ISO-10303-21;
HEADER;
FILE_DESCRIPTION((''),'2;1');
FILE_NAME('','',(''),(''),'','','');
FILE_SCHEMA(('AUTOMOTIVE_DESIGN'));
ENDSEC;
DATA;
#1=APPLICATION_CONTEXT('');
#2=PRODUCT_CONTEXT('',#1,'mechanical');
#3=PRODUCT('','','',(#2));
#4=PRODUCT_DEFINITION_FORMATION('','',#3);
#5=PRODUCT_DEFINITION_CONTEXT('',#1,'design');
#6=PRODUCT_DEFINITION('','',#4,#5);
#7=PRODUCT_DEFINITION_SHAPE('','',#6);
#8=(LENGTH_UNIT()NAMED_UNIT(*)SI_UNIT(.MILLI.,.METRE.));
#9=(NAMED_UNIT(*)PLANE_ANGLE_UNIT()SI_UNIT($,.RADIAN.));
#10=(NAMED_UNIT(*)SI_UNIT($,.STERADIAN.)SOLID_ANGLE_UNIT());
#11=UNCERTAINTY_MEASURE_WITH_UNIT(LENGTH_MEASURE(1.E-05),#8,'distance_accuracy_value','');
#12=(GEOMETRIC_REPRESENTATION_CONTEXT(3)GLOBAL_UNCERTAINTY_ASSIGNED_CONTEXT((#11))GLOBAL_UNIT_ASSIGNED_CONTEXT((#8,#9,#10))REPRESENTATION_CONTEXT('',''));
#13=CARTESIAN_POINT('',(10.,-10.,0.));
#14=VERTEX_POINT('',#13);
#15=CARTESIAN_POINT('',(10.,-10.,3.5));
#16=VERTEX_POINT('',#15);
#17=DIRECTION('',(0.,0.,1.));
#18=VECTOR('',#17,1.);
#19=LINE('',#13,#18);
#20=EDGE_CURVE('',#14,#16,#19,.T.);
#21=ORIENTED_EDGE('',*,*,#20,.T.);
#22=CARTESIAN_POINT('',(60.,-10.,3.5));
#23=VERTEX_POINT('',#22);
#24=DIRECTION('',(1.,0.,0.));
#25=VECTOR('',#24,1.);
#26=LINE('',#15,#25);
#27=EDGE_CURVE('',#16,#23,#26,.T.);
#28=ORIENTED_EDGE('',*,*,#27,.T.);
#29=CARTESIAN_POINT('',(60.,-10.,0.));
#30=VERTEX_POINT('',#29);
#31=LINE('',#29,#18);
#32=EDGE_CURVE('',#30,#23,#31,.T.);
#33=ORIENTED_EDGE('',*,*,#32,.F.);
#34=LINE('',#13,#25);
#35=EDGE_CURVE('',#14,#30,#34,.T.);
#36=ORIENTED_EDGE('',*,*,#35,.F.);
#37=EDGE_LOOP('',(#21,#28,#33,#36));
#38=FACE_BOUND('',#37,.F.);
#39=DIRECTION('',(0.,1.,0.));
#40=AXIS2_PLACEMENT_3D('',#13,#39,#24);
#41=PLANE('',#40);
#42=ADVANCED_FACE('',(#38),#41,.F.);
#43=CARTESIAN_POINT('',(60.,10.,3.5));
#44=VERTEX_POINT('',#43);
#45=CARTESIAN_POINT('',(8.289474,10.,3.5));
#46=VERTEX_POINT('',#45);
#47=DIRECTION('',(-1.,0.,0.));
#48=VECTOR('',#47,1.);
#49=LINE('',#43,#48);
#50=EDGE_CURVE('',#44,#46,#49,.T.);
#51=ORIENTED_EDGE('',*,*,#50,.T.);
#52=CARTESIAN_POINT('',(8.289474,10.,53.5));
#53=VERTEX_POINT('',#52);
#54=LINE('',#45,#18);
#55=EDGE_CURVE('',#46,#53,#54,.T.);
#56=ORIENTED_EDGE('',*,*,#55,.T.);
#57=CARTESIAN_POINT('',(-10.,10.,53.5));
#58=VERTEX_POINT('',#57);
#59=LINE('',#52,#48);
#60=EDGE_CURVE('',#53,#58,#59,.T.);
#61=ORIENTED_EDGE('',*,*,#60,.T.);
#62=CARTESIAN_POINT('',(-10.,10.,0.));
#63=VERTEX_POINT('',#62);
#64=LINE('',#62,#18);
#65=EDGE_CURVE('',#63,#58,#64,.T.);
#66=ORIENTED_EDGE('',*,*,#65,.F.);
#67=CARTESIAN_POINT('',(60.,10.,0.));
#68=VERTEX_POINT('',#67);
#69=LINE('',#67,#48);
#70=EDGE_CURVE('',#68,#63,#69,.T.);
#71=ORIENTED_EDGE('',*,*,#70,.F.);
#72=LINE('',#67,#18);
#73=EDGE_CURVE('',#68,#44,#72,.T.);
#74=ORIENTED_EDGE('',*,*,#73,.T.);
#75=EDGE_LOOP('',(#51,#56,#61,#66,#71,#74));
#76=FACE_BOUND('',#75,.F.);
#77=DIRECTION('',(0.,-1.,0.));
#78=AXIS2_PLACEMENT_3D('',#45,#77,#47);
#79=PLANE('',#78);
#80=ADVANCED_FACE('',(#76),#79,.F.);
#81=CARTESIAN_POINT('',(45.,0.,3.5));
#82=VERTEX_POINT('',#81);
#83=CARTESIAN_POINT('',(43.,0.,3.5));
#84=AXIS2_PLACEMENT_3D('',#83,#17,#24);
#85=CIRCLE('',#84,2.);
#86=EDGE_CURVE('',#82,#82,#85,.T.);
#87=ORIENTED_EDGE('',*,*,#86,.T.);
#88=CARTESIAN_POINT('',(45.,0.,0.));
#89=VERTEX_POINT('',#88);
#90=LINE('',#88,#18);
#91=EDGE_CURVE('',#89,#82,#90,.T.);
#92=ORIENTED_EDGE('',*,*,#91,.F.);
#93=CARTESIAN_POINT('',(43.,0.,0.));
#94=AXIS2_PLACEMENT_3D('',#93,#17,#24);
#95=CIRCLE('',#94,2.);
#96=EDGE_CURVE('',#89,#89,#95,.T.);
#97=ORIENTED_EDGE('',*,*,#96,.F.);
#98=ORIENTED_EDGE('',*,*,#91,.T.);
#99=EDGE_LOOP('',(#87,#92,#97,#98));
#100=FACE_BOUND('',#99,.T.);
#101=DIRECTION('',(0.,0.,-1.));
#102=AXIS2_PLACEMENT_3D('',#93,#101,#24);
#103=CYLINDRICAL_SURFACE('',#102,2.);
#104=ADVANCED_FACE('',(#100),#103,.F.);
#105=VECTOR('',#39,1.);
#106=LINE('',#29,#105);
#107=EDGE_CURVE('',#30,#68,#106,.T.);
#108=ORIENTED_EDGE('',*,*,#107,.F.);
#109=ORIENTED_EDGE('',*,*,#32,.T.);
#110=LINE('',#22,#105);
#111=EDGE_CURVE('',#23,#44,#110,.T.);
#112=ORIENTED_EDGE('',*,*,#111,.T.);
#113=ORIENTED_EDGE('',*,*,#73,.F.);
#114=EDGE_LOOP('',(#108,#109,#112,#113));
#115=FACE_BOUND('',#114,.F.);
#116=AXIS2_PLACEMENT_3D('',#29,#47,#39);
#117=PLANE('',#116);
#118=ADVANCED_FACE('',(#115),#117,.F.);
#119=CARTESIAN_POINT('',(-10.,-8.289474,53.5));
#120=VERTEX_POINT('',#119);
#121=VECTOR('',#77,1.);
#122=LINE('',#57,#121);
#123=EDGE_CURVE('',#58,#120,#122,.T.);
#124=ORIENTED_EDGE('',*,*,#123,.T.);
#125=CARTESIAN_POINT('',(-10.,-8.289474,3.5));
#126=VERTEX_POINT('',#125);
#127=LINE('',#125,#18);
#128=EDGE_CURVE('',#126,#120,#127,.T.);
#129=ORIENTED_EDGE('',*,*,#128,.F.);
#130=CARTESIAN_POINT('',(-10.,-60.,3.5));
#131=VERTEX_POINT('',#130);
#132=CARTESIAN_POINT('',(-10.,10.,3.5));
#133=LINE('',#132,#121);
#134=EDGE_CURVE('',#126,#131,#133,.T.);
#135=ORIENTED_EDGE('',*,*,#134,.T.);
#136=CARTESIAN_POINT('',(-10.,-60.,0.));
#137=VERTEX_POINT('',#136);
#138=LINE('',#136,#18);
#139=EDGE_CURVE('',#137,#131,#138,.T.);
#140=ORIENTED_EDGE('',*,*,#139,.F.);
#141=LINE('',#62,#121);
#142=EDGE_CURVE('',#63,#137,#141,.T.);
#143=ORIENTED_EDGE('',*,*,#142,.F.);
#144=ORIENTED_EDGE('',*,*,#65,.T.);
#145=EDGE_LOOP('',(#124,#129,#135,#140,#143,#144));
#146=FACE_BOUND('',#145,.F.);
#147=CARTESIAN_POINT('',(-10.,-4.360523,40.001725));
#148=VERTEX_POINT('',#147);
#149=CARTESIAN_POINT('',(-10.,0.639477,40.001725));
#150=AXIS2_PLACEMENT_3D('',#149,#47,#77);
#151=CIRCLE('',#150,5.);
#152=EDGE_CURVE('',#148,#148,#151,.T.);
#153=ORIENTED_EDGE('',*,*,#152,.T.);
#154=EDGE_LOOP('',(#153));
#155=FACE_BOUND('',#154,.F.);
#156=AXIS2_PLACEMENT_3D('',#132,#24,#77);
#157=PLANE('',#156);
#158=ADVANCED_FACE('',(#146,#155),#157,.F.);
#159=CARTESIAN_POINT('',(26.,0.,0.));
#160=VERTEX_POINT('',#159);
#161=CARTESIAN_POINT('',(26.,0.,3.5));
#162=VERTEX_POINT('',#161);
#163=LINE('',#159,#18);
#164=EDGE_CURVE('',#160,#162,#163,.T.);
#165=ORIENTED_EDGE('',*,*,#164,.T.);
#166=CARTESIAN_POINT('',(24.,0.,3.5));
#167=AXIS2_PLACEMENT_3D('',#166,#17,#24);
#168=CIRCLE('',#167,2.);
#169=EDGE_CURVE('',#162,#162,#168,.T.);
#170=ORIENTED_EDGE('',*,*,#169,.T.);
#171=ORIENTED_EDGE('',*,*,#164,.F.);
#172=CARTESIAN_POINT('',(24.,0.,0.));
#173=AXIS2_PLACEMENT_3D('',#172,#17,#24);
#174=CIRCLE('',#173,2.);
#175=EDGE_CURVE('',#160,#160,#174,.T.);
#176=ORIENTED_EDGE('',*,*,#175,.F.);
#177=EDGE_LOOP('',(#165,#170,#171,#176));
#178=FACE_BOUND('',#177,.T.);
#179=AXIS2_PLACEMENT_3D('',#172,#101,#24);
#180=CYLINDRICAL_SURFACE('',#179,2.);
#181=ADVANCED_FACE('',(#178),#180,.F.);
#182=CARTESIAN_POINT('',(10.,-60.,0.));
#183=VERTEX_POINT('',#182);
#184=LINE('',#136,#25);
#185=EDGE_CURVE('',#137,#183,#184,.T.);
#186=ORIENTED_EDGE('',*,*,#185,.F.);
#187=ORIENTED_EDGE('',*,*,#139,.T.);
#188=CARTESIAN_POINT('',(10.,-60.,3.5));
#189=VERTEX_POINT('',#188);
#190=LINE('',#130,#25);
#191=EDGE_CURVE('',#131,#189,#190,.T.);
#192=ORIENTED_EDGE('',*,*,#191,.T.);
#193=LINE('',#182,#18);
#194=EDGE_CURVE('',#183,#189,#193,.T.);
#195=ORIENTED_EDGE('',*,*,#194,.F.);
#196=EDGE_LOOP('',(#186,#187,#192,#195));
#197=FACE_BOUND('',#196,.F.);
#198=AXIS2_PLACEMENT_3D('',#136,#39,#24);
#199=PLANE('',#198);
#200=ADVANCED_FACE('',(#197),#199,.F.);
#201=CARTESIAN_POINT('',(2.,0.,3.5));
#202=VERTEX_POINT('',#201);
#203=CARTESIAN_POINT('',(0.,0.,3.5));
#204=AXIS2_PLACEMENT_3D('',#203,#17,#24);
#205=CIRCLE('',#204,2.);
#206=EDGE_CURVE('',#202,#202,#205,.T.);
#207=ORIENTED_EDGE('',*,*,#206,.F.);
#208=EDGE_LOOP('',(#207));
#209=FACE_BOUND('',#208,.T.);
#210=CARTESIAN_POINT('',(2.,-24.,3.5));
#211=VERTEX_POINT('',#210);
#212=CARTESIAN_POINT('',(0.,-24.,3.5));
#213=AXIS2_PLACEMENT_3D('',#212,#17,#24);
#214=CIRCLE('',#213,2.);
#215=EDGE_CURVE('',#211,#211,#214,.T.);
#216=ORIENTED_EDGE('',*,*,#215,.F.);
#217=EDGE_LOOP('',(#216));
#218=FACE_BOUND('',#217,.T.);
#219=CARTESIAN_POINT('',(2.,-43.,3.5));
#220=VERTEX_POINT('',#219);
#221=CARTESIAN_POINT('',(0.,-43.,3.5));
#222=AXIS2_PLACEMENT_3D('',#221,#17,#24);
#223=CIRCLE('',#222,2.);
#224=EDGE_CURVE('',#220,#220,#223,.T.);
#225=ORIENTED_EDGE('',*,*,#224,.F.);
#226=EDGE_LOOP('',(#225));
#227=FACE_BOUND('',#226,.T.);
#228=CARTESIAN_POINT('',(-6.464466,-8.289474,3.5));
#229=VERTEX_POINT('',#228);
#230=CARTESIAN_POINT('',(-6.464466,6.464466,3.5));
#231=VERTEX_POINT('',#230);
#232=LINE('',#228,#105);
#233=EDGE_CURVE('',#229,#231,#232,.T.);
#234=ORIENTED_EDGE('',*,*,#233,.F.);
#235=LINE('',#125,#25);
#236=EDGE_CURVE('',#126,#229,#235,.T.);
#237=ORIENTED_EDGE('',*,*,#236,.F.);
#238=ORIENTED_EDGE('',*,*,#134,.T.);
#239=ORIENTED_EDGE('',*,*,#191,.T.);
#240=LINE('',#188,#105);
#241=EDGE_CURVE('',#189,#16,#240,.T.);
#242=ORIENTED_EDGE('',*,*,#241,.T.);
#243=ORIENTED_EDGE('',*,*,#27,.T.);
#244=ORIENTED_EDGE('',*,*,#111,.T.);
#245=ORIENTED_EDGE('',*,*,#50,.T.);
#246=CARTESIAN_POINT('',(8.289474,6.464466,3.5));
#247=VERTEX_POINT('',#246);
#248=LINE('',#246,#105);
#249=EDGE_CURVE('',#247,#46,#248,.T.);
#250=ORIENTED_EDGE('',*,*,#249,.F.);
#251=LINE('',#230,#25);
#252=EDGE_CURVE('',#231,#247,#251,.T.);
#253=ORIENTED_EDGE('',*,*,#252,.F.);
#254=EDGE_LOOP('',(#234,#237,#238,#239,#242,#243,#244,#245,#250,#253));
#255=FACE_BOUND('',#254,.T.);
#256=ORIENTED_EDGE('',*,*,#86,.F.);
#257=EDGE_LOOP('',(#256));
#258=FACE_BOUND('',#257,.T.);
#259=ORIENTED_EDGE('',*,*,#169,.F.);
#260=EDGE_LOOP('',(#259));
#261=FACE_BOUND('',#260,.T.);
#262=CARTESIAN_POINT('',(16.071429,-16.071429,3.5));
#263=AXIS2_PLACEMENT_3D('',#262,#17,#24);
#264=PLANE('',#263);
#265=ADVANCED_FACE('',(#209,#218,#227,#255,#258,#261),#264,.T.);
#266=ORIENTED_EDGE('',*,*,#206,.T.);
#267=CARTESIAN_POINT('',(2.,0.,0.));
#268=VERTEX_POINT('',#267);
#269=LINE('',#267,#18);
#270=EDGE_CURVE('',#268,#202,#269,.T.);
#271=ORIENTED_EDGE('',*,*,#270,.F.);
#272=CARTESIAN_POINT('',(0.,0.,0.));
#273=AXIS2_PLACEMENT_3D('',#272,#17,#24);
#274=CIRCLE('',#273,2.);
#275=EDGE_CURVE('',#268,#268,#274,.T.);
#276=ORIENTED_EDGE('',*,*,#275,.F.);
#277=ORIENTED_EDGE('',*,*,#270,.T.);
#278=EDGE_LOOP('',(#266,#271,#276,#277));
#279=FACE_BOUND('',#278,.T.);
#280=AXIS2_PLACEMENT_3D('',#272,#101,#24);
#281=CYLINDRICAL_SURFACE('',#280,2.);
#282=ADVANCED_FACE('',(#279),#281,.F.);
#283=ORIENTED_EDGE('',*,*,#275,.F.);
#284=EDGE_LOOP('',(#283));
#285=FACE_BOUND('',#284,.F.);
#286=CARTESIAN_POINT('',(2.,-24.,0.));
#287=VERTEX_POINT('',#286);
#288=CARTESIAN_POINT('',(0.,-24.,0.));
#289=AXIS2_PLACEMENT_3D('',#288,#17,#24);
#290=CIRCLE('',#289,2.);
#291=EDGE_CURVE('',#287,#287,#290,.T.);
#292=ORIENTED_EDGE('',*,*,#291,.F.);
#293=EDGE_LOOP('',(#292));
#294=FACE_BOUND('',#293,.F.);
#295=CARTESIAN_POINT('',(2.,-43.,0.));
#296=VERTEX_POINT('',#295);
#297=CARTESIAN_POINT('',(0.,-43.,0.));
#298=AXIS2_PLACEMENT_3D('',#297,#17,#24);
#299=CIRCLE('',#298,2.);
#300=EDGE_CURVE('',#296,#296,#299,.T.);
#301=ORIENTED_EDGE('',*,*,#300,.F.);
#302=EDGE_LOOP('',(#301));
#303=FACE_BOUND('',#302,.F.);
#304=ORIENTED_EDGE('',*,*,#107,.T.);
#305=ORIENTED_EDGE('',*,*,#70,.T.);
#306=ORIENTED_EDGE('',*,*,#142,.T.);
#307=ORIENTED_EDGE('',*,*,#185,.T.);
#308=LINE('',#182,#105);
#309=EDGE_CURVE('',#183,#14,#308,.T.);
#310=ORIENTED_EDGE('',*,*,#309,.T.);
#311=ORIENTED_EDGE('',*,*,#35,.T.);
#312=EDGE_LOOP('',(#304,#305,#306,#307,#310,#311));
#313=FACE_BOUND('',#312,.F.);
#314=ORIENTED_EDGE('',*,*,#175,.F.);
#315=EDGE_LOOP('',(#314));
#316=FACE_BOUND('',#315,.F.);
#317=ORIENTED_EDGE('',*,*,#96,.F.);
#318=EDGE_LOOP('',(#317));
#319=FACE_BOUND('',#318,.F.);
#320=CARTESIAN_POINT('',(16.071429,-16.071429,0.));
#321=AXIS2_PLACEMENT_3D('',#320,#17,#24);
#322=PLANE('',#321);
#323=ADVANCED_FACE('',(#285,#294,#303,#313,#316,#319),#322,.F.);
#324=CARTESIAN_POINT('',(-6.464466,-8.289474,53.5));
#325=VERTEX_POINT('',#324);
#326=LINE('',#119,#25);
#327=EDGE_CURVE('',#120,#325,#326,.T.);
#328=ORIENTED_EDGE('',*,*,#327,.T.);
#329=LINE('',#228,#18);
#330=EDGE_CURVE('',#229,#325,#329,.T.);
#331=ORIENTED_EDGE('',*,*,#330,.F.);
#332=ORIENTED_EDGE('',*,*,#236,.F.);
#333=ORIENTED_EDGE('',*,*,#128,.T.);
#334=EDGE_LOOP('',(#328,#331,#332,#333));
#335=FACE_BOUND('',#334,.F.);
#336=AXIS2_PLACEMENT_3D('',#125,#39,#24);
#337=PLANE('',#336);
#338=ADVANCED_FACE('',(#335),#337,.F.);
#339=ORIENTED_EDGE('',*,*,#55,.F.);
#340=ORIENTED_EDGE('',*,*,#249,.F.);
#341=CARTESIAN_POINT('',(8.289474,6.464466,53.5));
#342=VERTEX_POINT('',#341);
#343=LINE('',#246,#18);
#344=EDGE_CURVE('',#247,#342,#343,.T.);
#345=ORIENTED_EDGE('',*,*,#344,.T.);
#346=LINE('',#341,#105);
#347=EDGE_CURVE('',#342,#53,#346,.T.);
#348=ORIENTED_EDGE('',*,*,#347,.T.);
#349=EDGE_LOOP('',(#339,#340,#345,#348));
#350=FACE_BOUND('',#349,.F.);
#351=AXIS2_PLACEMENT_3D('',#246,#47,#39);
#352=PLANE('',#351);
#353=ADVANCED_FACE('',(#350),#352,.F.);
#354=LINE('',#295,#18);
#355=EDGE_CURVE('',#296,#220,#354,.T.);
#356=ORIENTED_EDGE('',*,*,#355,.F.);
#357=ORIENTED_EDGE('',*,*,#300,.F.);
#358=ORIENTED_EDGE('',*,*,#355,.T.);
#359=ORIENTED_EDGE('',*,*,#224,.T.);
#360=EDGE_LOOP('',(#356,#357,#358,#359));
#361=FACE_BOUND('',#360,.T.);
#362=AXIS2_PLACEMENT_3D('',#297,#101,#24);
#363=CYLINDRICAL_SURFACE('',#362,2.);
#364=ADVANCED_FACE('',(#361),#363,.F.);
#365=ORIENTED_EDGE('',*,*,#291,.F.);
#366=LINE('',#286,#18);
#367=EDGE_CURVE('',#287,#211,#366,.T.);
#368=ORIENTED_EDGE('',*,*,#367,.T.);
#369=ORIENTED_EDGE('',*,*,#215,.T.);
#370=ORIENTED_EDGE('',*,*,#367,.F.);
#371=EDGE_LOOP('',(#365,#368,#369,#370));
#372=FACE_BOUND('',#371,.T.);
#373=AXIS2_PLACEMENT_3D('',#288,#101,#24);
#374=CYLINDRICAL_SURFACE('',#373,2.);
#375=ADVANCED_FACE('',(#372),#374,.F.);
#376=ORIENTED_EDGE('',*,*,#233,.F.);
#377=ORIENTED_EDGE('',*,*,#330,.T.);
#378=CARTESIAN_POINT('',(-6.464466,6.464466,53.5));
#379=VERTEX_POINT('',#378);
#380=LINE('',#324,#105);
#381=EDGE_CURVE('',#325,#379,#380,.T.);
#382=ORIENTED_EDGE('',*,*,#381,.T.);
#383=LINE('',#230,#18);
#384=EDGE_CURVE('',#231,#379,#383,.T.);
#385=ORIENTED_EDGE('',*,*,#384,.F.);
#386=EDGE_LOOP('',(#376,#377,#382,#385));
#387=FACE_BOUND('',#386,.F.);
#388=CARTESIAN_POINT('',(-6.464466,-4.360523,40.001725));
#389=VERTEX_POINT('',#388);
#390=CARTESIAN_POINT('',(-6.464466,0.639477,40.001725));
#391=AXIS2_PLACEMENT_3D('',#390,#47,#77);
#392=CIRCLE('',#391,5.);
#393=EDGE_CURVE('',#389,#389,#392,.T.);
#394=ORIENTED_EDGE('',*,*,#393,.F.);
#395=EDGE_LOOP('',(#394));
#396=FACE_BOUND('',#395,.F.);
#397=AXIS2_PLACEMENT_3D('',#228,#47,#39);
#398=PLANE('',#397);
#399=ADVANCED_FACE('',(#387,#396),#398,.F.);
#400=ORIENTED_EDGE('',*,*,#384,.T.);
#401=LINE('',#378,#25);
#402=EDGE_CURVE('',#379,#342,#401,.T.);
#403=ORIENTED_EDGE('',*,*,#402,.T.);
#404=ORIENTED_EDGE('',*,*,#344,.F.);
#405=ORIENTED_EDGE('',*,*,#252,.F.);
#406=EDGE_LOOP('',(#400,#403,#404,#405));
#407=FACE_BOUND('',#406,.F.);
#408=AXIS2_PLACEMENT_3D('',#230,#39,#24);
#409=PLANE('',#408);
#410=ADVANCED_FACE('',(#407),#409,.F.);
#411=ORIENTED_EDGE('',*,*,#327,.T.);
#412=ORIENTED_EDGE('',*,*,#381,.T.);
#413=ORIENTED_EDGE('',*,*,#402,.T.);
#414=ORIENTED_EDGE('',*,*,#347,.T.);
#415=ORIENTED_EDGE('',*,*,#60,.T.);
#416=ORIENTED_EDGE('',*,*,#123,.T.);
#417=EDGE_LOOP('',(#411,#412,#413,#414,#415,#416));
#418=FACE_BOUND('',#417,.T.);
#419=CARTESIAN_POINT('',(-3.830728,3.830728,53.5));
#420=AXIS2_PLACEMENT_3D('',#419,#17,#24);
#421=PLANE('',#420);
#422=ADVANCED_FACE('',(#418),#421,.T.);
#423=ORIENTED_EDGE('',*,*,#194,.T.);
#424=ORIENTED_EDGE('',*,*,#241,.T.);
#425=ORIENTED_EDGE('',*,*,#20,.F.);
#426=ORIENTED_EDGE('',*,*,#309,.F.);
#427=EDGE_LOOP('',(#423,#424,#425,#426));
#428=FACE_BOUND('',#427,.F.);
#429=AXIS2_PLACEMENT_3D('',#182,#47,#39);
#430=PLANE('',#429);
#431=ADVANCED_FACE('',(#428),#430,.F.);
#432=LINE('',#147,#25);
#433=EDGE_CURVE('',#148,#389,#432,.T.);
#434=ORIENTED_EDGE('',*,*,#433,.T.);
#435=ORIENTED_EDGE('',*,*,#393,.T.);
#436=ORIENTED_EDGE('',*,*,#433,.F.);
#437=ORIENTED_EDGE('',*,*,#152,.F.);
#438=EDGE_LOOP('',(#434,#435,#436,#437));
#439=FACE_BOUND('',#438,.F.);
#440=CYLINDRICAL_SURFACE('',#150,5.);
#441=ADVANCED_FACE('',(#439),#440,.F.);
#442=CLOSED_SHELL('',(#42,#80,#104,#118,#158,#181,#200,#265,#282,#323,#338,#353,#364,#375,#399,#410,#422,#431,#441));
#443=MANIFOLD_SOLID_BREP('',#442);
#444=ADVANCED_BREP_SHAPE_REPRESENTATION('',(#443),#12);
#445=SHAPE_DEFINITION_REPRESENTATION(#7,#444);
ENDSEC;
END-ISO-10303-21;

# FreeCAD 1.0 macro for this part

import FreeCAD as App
import Part
import Sketcher
from FreeCAD import Vector
Q = App.Units.Quantity


def add_polygon(sketch, points):
    """Adds a closed chain of lines whose ends are joined by coincident constraints."""
    first, n = sketch.GeometryCount, len(points)
    for a, b in zip(points, points[1:] + points[:1]):
        sketch.addGeometry(Part.LineSegment(App.Vector(*a, 0), App.Vector(*b, 0)), False)
    for i in range(n):
        sketch.addConstraint(Sketcher.Constraint("Coincident", first + i, 2, first + (i + 1) % n, 1))

doc = App.newDocument("Part")
params = doc.addObject("Spreadsheet::Sheet", "Params")
for row, (alias, value) in enumerate([
    ("sketch1_diameter", "4 mm"),
    ("sketch1_width", "20 mm"),
    ("sketch1_width2", "50 mm"),
    ("pad1_length", "3.5 mm"),
    ("pad2_length", "50 mm"),
    ("sketch3_diameter", "10 mm"),
], start=1):
    params.set(f"A{row}", alias)
    params.set(f"B{row}", "=" + value)
    params.setAlias(f"B{row}", alias)

body = doc.addObject("PartDesign::Body", "Body")

# Sketch on XY plane
sketch1 = body.newObject("Sketcher::SketchObject", "Sketch")
sketch1.AttachmentSupport = (doc.getObject("XY_Plane"), [""])
sketch1.MapMode = "FlatFace"
add_polygon(sketch1, [(-10, -60), (10, -60), (10, -10), (60, -10), (60, 10), (-10, 10)])  # lines 0-5
sketch1.addGeometry(Part.Circle(Vector(0, -43, 0), Vector(0, 0, 1), 2), False)  # 6
sketch1.addGeometry(Part.Circle(Vector(0, -24, 0), Vector(0, 0, 1), 2), False)  # 7
sketch1.addGeometry(Part.Circle(Vector(0, 0, 0), Vector(0, 0, 1), 2), False)  # 8
sketch1.addGeometry(Part.Circle(Vector(24, 0, 0), Vector(0, 0, 1), 2), False)  # 9
sketch1.addGeometry(Part.Circle(Vector(43, 0, 0), Vector(0, 0, 1), 2), False)  # 10
sketch1.addConstraint([
    Sketcher.Constraint("Horizontal", 0),
    Sketcher.Constraint("Vertical", 1),
    Sketcher.Constraint("Horizontal", 2),
    Sketcher.Constraint("Vertical", 3),
    Sketcher.Constraint("Horizontal", 4),
    Sketcher.Constraint("Vertical", 5),
    Sketcher.Constraint("Coincident", 8, 3, -1, 1),
    Sketcher.Constraint("Equal", 6, 7),
    Sketcher.Constraint("Equal", 7, 8),
    Sketcher.Constraint("Equal", 8, 9),
    Sketcher.Constraint("Equal", 9, 10),
    Sketcher.Constraint("Symmetric", 1, 2, 4, 2, -1, 1),
    Sketcher.Constraint("PointOnObject", 6, 3, -2),
    Sketcher.Constraint("PointOnObject", 7, 3, -2),
    Sketcher.Constraint("PointOnObject", 9, 3, -1),
    Sketcher.Constraint("PointOnObject", 10, 3, -1),
    Sketcher.Constraint("Equal", 2, 1),
    Sketcher.Constraint("Equal", 0, 3),
    Sketcher.Constraint("Diameter", 6, Q("4 mm")),
    Sketcher.Constraint("DistanceX", 0, 1, 0, 2, Q("20 mm")),
    Sketcher.Constraint("DistanceX", 2, 1, 2, 2, Q("50 mm")),
    Sketcher.Constraint("DistanceY", 6, 3, -1, 1, Q("43 mm")),
    Sketcher.Constraint("DistanceY", 7, 3, -1, 1, Q("24 mm")),
    Sketcher.Constraint("DistanceX", -1, 1, 9, 3, Q("24 mm")),
    Sketcher.Constraint("DistanceX", -1, 1, 10, 3, Q("43 mm")),
])
sketch1.setExpression("Constraints[24]", "Params.sketch1_diameter")
sketch1.setExpression("Constraints[25]", "Params.sketch1_width")
sketch1.setExpression("Constraints[26]", "Params.sketch1_width2")
pad1 = body.newObject("PartDesign::Pad", "Pad")
pad1.Profile = sketch1
pad1.setExpression("Length", "Params.pad1_length")

# Sketch on XY plane
sketch2 = body.newObject("Sketcher::SketchObject", "Sketch001")
sketch2.AttachmentSupport = (doc.getObject("XY_Plane"), [""])
sketch2.MapMode = "FlatFace"
sketch2.AttachmentOffset = App.Placement(Vector(0, 0, 3.5), App.Rotation())
add_polygon(sketch2, [(8.3, 10), (-10, 10), (-10, -8.3), (-6.5, -8.3), (-6.5, 6.5), (8.3, 6.5)])  # lines 0-5
sketch2.addConstraint([
    Sketcher.Constraint("Horizontal", 0),
    Sketcher.Constraint("Vertical", 1),
    Sketcher.Constraint("Horizontal", 2),
    Sketcher.Constraint("Vertical", 3),
    Sketcher.Constraint("Horizontal", 4),
    Sketcher.Constraint("Vertical", 5),
    Sketcher.Constraint("Equal", 0, 1),
    Sketcher.Constraint("Equal", 4, 3),
    Sketcher.Constraint("DistanceX", 0, 2, -1, 1, Q("10 mm")),
    Sketcher.Constraint("DistanceY", -1, 1, 0, 2, Q("10 mm")),
    Sketcher.Constraint("DistanceX", 4, 1, 4, 2, Q("14.75394 mm")),
    Sketcher.Constraint("DistanceX", 0, 2, 0, 1, Q("18.289474 mm")),
])
pad2 = body.newObject("PartDesign::Pad", "Pad001")
pad2.Profile = sketch2
pad2.setExpression("Length", "Params.pad2_length")

# Sketch on YZ plane
sketch3 = body.newObject("Sketcher::SketchObject", "Sketch002")
sketch3.AttachmentSupport = (doc.getObject("YZ_Plane"), [""])
sketch3.MapMode = "FlatFace"
sketch3.AttachmentOffset = App.Placement(Vector(0, 0, -10), App.Rotation())
sketch3.addGeometry(Part.Circle(Vector(1, 40, 0), Vector(0, 0, 1), 5), False)
sketch3.addConstraint([
    Sketcher.Constraint("Diameter", 0, Q("10 mm")),
    Sketcher.Constraint("DistanceX", -1, 1, 0, 3, Q("0.639477 mm")),
    Sketcher.Constraint("DistanceY", -1, 1, 0, 3, Q("40.001725 mm")),
])
sketch3.setExpression("Constraints[0]", "Params.sketch3_diameter")
pocket1 = body.newObject("PartDesign::Pocket", "Pocket")
pocket1.Profile = sketch3
pocket1.Type = "ThroughAll"
pocket1.Reversed = True

doc.recompute()
